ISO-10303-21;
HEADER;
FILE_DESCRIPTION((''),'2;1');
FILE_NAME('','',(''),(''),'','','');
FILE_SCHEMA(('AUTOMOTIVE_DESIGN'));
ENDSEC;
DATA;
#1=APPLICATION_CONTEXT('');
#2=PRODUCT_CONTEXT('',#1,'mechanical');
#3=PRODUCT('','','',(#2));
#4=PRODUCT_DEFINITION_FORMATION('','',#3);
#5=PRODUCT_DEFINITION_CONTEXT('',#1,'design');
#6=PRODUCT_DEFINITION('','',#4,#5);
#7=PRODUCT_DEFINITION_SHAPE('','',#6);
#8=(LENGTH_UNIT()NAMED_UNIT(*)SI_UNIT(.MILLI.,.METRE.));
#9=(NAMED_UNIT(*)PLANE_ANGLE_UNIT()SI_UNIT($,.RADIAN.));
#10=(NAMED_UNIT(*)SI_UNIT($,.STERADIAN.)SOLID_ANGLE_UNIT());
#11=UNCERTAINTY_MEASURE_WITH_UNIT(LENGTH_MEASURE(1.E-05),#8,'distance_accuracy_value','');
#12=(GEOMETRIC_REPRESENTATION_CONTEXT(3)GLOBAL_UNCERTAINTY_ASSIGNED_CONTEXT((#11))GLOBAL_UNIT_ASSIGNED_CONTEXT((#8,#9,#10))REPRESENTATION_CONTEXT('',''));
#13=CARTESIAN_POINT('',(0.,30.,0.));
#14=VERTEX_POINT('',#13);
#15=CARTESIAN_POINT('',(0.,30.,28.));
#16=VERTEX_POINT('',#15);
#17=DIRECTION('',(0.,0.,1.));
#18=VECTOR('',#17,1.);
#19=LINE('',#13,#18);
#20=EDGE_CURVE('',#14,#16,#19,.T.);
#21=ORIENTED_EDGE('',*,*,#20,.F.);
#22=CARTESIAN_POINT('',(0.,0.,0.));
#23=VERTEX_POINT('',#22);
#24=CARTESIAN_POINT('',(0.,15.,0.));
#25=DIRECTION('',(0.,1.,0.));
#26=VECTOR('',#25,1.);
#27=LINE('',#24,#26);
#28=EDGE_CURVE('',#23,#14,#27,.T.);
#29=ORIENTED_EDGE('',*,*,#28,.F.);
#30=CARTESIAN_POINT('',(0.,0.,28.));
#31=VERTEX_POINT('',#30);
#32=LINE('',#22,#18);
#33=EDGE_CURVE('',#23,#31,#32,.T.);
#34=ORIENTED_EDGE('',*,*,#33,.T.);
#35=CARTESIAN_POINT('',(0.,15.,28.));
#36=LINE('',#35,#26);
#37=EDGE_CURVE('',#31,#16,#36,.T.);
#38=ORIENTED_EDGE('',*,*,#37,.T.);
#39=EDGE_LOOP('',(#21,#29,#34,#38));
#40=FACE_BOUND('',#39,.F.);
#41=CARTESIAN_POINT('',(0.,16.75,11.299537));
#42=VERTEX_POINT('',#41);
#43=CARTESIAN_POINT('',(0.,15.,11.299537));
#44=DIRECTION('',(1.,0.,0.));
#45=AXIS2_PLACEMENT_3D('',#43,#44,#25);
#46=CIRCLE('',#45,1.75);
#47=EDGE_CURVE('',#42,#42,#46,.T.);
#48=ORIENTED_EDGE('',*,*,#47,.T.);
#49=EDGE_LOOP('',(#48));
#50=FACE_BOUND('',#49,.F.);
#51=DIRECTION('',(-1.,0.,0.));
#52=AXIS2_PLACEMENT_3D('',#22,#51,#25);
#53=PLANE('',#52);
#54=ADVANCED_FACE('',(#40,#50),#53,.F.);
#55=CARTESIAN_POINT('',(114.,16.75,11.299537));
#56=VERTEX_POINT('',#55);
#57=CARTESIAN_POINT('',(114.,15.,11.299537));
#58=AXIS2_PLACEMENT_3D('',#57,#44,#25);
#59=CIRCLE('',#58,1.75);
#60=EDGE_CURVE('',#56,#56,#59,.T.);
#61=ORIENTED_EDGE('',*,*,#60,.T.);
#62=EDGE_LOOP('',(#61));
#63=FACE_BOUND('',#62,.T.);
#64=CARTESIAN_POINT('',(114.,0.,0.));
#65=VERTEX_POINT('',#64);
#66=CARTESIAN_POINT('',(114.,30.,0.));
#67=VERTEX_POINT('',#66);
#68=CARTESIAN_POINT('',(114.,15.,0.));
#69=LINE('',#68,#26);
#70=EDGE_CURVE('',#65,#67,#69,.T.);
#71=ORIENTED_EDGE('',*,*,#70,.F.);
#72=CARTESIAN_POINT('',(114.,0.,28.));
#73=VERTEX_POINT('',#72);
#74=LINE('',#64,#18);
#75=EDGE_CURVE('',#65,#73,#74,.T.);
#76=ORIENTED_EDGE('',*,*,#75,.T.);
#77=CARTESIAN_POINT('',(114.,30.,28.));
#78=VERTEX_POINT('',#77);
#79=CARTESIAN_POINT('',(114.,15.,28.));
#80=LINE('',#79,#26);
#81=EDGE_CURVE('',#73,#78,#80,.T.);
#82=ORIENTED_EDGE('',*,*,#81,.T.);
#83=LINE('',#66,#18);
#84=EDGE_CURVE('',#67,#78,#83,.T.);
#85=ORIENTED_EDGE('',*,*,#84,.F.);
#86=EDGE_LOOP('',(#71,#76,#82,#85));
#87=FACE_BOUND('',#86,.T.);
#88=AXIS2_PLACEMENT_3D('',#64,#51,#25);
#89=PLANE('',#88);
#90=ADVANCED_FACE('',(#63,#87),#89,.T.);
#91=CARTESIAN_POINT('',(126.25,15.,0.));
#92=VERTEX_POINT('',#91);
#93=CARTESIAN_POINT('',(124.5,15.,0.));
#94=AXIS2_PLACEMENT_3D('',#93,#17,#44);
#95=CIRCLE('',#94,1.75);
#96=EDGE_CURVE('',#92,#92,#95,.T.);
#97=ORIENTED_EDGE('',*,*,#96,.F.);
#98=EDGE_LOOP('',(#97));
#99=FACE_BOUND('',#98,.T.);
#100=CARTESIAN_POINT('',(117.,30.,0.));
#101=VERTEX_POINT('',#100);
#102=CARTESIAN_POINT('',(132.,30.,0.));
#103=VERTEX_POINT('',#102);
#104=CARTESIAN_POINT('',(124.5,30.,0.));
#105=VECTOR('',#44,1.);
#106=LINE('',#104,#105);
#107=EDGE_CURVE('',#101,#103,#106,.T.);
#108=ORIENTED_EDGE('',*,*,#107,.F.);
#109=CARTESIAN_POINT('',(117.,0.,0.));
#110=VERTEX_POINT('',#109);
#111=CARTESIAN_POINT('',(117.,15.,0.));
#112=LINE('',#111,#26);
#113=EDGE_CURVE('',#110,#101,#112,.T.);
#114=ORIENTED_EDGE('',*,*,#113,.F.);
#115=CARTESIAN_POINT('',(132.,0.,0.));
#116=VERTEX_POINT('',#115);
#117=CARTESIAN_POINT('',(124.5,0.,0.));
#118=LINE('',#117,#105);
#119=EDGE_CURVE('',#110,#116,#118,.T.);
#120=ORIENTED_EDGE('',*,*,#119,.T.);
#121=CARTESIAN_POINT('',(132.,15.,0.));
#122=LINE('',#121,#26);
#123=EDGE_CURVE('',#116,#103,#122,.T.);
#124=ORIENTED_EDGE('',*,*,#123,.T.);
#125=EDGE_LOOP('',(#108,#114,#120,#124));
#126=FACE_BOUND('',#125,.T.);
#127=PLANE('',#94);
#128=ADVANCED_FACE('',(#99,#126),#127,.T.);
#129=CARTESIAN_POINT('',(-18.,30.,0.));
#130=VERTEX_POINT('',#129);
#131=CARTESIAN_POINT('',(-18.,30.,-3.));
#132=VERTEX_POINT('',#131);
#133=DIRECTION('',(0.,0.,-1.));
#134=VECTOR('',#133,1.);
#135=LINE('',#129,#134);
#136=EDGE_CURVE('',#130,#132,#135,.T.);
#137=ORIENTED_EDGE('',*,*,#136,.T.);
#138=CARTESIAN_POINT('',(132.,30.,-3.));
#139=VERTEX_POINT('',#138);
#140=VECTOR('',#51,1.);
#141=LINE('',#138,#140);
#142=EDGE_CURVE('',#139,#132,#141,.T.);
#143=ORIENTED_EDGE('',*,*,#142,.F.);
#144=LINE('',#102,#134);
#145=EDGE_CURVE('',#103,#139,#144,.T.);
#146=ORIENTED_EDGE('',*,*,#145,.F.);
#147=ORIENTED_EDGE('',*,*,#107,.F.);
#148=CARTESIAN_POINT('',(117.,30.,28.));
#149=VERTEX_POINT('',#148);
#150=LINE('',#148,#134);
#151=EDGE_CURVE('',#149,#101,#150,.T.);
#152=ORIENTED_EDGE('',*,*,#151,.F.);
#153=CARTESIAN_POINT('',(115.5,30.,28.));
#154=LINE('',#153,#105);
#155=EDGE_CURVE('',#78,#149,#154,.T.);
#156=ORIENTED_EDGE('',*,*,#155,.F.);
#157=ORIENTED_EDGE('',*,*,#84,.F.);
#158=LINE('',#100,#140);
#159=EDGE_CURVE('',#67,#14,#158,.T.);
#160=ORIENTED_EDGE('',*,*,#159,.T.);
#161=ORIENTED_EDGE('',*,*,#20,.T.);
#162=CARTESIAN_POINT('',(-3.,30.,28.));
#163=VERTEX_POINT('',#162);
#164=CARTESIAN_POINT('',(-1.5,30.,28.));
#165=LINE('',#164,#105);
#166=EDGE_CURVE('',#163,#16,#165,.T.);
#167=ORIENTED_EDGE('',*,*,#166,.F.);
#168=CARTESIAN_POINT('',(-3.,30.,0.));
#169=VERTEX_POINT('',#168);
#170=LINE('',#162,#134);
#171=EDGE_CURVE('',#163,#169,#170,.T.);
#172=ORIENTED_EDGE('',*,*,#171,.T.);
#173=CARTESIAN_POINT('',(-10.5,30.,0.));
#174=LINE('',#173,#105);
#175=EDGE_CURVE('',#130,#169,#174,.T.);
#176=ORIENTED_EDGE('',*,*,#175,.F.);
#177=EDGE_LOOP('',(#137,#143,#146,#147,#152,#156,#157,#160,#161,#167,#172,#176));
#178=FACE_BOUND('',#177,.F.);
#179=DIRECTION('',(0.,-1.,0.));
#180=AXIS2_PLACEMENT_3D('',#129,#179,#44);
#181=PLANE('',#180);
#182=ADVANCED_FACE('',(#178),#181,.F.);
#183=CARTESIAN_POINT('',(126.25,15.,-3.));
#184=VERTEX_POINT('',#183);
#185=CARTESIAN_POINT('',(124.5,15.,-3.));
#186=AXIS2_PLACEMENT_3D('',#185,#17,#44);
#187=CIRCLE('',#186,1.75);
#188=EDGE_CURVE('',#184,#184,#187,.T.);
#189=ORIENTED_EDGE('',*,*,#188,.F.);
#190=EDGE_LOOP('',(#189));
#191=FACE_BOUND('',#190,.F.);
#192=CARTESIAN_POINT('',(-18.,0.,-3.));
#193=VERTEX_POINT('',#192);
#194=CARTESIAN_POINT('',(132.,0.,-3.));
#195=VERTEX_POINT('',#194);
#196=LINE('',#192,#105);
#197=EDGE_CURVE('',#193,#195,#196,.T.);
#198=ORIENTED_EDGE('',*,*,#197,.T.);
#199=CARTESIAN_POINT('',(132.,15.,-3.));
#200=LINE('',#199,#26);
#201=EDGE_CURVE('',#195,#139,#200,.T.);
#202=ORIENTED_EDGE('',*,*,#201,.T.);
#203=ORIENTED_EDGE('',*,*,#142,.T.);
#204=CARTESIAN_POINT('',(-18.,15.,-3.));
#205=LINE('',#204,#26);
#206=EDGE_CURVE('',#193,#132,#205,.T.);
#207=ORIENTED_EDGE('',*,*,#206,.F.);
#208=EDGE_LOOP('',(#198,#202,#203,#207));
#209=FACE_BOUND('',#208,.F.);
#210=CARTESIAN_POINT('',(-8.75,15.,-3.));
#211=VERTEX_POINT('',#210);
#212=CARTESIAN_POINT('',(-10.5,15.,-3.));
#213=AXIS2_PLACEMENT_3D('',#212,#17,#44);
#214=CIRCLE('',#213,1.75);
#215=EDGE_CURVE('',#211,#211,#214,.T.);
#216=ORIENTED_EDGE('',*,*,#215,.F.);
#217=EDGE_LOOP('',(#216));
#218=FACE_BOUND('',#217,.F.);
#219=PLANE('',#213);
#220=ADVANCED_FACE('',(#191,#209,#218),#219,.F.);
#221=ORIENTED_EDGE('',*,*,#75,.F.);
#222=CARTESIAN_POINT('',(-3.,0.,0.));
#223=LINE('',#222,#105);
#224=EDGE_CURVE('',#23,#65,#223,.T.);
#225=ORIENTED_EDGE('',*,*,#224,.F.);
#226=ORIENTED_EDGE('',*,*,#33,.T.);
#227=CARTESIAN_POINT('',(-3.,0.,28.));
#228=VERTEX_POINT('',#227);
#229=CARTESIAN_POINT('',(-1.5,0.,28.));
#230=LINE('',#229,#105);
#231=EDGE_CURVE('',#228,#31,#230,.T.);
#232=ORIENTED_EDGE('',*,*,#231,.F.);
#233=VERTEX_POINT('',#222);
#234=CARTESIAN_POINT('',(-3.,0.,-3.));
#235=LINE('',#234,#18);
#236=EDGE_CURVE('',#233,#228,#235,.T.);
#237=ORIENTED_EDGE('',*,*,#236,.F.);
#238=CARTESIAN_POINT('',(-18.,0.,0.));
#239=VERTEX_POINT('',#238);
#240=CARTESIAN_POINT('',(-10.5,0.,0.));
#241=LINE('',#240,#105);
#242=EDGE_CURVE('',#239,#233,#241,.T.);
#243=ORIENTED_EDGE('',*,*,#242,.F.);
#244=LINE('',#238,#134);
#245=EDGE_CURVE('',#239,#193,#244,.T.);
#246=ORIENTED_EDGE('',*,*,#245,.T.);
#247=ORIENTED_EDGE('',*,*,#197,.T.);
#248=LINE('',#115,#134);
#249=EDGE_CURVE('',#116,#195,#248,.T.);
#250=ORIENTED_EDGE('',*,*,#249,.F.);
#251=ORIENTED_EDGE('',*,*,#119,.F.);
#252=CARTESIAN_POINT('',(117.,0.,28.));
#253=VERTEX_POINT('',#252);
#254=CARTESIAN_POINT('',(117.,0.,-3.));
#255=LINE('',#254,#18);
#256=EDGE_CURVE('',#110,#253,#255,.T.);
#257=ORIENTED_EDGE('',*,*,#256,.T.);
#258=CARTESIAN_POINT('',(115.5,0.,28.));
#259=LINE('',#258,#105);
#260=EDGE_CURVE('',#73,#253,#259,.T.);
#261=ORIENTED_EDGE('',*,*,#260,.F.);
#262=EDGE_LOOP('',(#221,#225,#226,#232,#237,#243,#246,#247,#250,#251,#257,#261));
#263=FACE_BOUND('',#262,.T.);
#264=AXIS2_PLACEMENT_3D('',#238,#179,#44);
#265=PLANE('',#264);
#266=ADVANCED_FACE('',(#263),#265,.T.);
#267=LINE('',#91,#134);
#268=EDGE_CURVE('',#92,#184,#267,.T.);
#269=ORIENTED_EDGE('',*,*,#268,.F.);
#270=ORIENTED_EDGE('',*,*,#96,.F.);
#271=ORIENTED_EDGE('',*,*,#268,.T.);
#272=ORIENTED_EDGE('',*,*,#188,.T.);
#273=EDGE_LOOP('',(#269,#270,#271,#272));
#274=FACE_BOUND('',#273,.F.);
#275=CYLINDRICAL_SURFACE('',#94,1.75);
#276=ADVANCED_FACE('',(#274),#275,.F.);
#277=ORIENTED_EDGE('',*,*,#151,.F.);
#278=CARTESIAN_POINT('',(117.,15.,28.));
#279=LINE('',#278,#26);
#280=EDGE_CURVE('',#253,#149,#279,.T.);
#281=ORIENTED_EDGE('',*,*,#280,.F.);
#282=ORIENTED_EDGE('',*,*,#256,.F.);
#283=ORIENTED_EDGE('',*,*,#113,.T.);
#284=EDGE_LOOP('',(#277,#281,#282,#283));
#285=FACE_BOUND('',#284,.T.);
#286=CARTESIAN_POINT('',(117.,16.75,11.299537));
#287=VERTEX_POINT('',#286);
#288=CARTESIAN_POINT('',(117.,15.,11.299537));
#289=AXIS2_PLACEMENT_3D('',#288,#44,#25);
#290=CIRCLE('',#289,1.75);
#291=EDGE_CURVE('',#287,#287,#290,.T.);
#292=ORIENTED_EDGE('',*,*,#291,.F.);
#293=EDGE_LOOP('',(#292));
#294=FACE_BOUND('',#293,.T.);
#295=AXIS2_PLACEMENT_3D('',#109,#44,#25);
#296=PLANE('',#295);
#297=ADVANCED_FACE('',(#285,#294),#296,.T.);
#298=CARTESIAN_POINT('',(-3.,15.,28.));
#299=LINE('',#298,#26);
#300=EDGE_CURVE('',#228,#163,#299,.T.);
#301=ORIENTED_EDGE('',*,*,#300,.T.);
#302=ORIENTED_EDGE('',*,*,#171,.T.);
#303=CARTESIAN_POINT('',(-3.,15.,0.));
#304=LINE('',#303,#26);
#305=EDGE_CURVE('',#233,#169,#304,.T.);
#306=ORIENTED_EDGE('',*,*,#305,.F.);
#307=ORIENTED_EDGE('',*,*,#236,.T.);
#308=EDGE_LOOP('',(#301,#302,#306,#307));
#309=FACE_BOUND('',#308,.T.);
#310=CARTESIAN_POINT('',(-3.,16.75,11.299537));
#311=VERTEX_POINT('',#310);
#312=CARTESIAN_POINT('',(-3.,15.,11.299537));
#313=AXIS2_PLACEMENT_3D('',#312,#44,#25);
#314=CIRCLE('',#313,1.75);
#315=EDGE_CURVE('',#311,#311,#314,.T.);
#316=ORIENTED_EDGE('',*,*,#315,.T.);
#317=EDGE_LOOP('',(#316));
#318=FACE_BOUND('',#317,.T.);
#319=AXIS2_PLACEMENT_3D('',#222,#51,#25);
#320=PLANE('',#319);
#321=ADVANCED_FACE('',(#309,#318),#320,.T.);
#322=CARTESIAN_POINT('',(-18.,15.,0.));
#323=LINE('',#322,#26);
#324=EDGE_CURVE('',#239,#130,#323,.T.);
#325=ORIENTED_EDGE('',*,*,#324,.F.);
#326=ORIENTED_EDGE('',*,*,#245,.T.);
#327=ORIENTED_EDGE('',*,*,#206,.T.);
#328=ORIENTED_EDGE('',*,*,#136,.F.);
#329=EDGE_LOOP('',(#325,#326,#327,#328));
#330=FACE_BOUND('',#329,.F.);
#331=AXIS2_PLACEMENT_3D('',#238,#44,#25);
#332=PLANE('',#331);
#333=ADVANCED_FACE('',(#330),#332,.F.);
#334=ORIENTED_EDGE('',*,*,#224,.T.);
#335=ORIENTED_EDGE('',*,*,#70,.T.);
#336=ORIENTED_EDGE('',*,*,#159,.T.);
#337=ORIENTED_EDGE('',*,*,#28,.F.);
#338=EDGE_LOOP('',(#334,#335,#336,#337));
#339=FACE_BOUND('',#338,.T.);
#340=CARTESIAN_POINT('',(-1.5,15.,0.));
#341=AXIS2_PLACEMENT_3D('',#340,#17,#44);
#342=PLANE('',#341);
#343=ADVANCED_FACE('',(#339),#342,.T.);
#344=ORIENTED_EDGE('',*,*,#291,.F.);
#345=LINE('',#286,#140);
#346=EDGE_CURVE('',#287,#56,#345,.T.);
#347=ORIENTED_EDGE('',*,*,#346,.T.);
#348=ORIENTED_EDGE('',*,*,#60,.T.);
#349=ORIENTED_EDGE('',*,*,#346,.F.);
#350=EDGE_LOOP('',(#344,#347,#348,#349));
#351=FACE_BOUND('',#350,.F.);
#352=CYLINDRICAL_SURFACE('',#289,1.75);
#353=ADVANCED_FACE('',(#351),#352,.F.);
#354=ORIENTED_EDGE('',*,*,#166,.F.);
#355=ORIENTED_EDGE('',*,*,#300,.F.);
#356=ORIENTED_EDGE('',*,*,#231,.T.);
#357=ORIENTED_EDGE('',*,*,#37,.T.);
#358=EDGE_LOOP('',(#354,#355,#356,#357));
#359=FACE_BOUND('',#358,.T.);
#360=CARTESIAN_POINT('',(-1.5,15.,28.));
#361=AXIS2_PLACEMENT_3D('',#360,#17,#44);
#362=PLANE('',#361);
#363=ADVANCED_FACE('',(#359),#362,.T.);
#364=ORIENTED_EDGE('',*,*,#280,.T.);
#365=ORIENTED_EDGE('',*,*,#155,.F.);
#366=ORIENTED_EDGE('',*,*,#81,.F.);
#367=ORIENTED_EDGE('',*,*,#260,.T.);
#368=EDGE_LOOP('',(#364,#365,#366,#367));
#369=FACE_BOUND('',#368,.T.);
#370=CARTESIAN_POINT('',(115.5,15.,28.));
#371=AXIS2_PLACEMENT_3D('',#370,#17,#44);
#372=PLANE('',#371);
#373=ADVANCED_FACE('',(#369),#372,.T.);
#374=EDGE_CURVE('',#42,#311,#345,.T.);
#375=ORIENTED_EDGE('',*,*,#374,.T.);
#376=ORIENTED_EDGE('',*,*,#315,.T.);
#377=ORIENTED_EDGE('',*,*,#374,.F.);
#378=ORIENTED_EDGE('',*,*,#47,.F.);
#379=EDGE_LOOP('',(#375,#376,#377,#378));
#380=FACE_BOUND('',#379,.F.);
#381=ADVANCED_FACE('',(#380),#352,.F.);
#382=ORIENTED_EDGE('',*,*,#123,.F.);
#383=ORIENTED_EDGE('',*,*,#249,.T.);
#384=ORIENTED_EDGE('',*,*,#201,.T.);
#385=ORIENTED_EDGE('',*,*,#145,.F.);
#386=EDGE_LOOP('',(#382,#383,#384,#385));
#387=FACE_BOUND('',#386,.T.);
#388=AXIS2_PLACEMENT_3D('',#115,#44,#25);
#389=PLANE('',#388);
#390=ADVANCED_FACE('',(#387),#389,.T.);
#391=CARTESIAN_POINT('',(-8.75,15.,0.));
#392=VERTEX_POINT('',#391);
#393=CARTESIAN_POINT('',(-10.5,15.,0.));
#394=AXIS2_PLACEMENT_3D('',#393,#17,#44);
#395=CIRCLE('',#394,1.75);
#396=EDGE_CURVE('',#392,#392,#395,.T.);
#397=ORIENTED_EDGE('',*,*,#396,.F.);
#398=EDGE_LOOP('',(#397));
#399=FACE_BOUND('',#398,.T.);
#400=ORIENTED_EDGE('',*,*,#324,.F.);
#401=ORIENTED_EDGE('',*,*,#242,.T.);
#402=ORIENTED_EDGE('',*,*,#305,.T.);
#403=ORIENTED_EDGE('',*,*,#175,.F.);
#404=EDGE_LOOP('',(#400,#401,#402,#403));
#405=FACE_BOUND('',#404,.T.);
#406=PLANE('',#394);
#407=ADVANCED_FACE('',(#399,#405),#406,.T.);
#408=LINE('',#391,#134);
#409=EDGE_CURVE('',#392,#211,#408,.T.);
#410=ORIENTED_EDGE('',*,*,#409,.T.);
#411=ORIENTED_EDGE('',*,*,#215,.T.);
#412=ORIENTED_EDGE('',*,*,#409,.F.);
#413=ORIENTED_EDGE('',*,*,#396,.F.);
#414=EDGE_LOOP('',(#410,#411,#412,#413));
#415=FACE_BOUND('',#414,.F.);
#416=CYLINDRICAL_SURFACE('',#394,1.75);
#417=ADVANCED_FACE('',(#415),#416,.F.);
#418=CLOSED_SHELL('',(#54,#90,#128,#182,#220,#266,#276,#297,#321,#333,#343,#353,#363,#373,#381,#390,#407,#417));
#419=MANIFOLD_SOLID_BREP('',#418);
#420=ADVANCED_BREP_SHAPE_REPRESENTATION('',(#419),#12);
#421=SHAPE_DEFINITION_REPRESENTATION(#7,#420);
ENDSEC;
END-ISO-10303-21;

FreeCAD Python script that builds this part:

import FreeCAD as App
import Part
import Sketcher

V = App.Vector

doc = App.newDocument("Part")
params = doc.addObject("Spreadsheet::Sheet", "Params")
for row, (alias, value) in enumerate([
    ("sketch1_width", "120 mm"),
    ("sketch1_height", "30 mm"),
    ("pad1_length", "3 mm"),
    ("sketch2_width", "3 mm"),
    ("sketch2_height", "30 mm"),
    ("pad2_length", "28 mm"),
    ("sketch3_diameter", "3.5 mm"),
    ("sketch3_width", "15 mm"),
    ("sketch3_height", "30 mm"),
    ("pad3_length", "3 mm"),
    ("sketch4_diameter", "3.5 mm"),
    ("pocket1_length", "200 mm"),
], start=1):
    params.set(f"A{row}", alias)
    params.set(f"B{row}", "=" + value)
    params.setAlias(f"B{row}", alias)

body = doc.addObject("PartDesign::Body", "Body")

sketch1 = body.newObject("Sketcher::SketchObject", "Sketch")
sketch1.AttachmentSupport = (doc.getObject("XY_Plane"), [""])
sketch1.MapMode = "FlatFace"
sketch1.addGeometry([
    Part.LineSegment(V(-3, 30, 0), V(-3, 0, 0)),
    Part.LineSegment(V(-3, 0, 0), V(117, 0, 0)),
    Part.LineSegment(V(117, 0, 0), V(117, 30, 0)),
    Part.LineSegment(V(117, 30, 0), V(-3, 30, 0)),
], False)
sketch1.addConstraint([
    Sketcher.Constraint("Coincident", 0, 2, 1, 1),
    Sketcher.Constraint("Coincident", 1, 2, 2, 1),
    Sketcher.Constraint("Coincident", 2, 2, 3, 1),
    Sketcher.Constraint("Coincident", 3, 2, 0, 1),
    Sketcher.Constraint("Vertical", 0),
    Sketcher.Constraint("Horizontal", 1),
    Sketcher.Constraint("Vertical", 2),
    Sketcher.Constraint("Horizontal", 3),
    Sketcher.Constraint("PointOnObject", 0, 2, -1),
    Sketcher.Constraint("DistanceX", 1, 1, 1, 2, 120.0),
    Sketcher.Constraint("DistanceY", 0, 2, 0, 1, 30.0),
    Sketcher.Constraint("DistanceX", 0, 2, -1, 1, 3.0),
])
sketch1.setExpression("Constraints[9]", "Params.sketch1_width")
sketch1.setExpression("Constraints[10]", "Params.sketch1_height")
pad1 = body.newObject("PartDesign::Pad", "Pad")
pad1.Profile = sketch1
pad1.setExpression("Length", "Params.pad1_length")
pad1.Reversed = True

sketch2 = body.newObject("Sketcher::SketchObject", "Sketch001")
sketch2.AttachmentSupport = (doc.getObject("XY_Plane"), [""])
sketch2.MapMode = "FlatFace"
sketch2.addGeometry([
    Part.LineSegment(V(-3, 30, 0), V(-3, 0, 0)),
    Part.LineSegment(V(-3, 0, 0), V(0, 0, 0)),
    Part.LineSegment(V(0, 0, 0), V(0, 30, 0)),
    Part.LineSegment(V(0, 30, 0), V(-3, 30, 0)),
    Part.LineSegment(V(114, 30, 0), V(114, 0, 0)),
    Part.LineSegment(V(114, 0, 0), V(117, 0, 0)),
    Part.LineSegment(V(117, 0, 0), V(117, 30, 0)),
    Part.LineSegment(V(117, 30, 0), V(114, 30, 0)),
], False)
sketch2.addConstraint([
    Sketcher.Constraint("Coincident", 0, 2, 1, 1),
    Sketcher.Constraint("Coincident", 1, 2, 2, 1),
    Sketcher.Constraint("Coincident", 2, 2, 3, 1),
    Sketcher.Constraint("Coincident", 3, 2, 0, 1),
    Sketcher.Constraint("Coincident", 4, 2, 5, 1),
    Sketcher.Constraint("Coincident", 5, 2, 6, 1),
    Sketcher.Constraint("Coincident", 6, 2, 7, 1),
    Sketcher.Constraint("Coincident", 7, 2, 4, 1),
    Sketcher.Constraint("Vertical", 0),
    Sketcher.Constraint("Horizontal", 1),
    Sketcher.Constraint("Vertical", 2),
    Sketcher.Constraint("Horizontal", 3),
    Sketcher.Constraint("Vertical", 4),
    Sketcher.Constraint("Horizontal", 5),
    Sketcher.Constraint("Vertical", 6),
    Sketcher.Constraint("Horizontal", 7),
    Sketcher.Constraint("Coincident", 1, 2, -1, 1),
    Sketcher.Constraint("PointOnObject", 4, 2, -1),
    Sketcher.Constraint("Horizontal", 3, 2, 6, 2),
    Sketcher.Constraint("Equal", 3, 5),
    Sketcher.Constraint("DistanceX", 1, 1, 1, 2, 3.0),
    Sketcher.Constraint("DistanceY", 0, 2, 0, 1, 30.0),
    Sketcher.Constraint("DistanceX", -1, 1, 4, 2, 114.0),
])
sketch2.setExpression("Constraints[20]", "Params.sketch2_width")
sketch2.setExpression("Constraints[21]", "Params.sketch2_height")
pad2 = body.newObject("PartDesign::Pad", "Pad001")
pad2.Profile = sketch2
pad2.setExpression("Length", "Params.pad2_length")

sketch3 = body.newObject("Sketcher::SketchObject", "Sketch002")
sketch3.AttachmentSupport = (doc.getObject("XY_Plane"), [""])
sketch3.MapMode = "FlatFace"
sketch3.addGeometry([
    Part.LineSegment(V(-18, 30, 0), V(-18, 0, 0)),
    Part.LineSegment(V(-18, 0, 0), V(-3, 0, 0)),
    Part.LineSegment(V(-3, 0, 0), V(-3, 30, 0)),
    Part.LineSegment(V(-3, 30, 0), V(-18, 30, 0)),
    Part.Circle(V(-10.5, 15, 0), V(0, 0, 1), 1.8),
    Part.LineSegment(V(117, 30, 0), V(117, 0, 0)),
    Part.LineSegment(V(117, 0, 0), V(132, 0, 0)),
    Part.LineSegment(V(132, 0, 0), V(132, 30, 0)),
    Part.LineSegment(V(132, 30, 0), V(117, 30, 0)),
    Part.Circle(V(124.5, 15, 0), V(0, 0, 1), 1.8),
], False)
sketch3.addConstraint([
    Sketcher.Constraint("Coincident", 0, 2, 1, 1),
    Sketcher.Constraint("Coincident", 1, 2, 2, 1),
    Sketcher.Constraint("Coincident", 2, 2, 3, 1),
    Sketcher.Constraint("Coincident", 3, 2, 0, 1),
    Sketcher.Constraint("Coincident", 5, 2, 6, 1),
    Sketcher.Constraint("Coincident", 6, 2, 7, 1),
    Sketcher.Constraint("Coincident", 7, 2, 8, 1),
    Sketcher.Constraint("Coincident", 8, 2, 5, 1),
    Sketcher.Constraint("Vertical", 0),
    Sketcher.Constraint("Horizontal", 1),
    Sketcher.Constraint("Vertical", 2),
    Sketcher.Constraint("Horizontal", 3),
    Sketcher.Constraint("Vertical", 5),
    Sketcher.Constraint("Horizontal", 6),
    Sketcher.Constraint("Vertical", 7),
    Sketcher.Constraint("Horizontal", 8),
    Sketcher.Constraint("Equal", 4, 9),
    Sketcher.Constraint("PointOnObject", 0, 2, -1),
    Sketcher.Constraint("PointOnObject", 5, 2, -1),
    Sketcher.Constraint("Horizontal", 4, 3, 9, 3),
    Sketcher.Constraint("Horizontal", 3, 2, 7, 2),
    Sketcher.Constraint("Equal", 3, 6),
    Sketcher.Constraint("Diameter", 4, 3.5),
    Sketcher.Constraint("DistanceX", 1, 1, 1, 2, 15.0),
    Sketcher.Constraint("DistanceY", 0, 2, 0, 1, 30.0),
    Sketcher.Constraint("DistanceY", -1, 1, 4, 3, 15.0),
    Sketcher.Constraint("DistanceX", 0, 2, -1, 1, 18.0),
    Sketcher.Constraint("DistanceX", -1, 1, 5, 2, 117.0),
    Sketcher.Constraint("DistanceX", 4, 3, 9, 3, 135.0),
    Sketcher.Constraint("DistanceX", 4, 3, -1, 1, 10.5),
])
sketch3.setExpression("Constraints[22]", "Params.sketch3_diameter")
sketch3.setExpression("Constraints[23]", "Params.sketch3_width")
sketch3.setExpression("Constraints[24]", "Params.sketch3_height")
pad3 = body.newObject("PartDesign::Pad", "Pad002")
pad3.Profile = sketch3
pad3.setExpression("Length", "Params.pad3_length")
pad3.Reversed = True

sketch4 = body.newObject("Sketcher::SketchObject", "Sketch003")
sketch4.AttachmentSupport = (doc.getObject("YZ_Plane"), [""])
sketch4.MapMode = "FlatFace"
sketch4.AttachmentOffset = App.Placement(V(0, 0, 117), App.Rotation())
sketch4.addGeometry(Part.Circle(V(15, 11.3, 0), V(0, 0, 1), 1.8), False)
sketch4.addConstraint([
    Sketcher.Constraint("Diameter", 0, 3.5),
    Sketcher.Constraint("DistanceX", -1, 1, 0, 3, 15.0),
    Sketcher.Constraint("DistanceY", -1, 1, 0, 3, 11.299537),
])
sketch4.setExpression("Constraints[0]", "Params.sketch4_diameter")
pocket1 = body.newObject("PartDesign::Pocket", "Pocket")
pocket1.Profile = sketch4
pocket1.setExpression("Length", "Params.pocket1_length")

doc.recompute()
